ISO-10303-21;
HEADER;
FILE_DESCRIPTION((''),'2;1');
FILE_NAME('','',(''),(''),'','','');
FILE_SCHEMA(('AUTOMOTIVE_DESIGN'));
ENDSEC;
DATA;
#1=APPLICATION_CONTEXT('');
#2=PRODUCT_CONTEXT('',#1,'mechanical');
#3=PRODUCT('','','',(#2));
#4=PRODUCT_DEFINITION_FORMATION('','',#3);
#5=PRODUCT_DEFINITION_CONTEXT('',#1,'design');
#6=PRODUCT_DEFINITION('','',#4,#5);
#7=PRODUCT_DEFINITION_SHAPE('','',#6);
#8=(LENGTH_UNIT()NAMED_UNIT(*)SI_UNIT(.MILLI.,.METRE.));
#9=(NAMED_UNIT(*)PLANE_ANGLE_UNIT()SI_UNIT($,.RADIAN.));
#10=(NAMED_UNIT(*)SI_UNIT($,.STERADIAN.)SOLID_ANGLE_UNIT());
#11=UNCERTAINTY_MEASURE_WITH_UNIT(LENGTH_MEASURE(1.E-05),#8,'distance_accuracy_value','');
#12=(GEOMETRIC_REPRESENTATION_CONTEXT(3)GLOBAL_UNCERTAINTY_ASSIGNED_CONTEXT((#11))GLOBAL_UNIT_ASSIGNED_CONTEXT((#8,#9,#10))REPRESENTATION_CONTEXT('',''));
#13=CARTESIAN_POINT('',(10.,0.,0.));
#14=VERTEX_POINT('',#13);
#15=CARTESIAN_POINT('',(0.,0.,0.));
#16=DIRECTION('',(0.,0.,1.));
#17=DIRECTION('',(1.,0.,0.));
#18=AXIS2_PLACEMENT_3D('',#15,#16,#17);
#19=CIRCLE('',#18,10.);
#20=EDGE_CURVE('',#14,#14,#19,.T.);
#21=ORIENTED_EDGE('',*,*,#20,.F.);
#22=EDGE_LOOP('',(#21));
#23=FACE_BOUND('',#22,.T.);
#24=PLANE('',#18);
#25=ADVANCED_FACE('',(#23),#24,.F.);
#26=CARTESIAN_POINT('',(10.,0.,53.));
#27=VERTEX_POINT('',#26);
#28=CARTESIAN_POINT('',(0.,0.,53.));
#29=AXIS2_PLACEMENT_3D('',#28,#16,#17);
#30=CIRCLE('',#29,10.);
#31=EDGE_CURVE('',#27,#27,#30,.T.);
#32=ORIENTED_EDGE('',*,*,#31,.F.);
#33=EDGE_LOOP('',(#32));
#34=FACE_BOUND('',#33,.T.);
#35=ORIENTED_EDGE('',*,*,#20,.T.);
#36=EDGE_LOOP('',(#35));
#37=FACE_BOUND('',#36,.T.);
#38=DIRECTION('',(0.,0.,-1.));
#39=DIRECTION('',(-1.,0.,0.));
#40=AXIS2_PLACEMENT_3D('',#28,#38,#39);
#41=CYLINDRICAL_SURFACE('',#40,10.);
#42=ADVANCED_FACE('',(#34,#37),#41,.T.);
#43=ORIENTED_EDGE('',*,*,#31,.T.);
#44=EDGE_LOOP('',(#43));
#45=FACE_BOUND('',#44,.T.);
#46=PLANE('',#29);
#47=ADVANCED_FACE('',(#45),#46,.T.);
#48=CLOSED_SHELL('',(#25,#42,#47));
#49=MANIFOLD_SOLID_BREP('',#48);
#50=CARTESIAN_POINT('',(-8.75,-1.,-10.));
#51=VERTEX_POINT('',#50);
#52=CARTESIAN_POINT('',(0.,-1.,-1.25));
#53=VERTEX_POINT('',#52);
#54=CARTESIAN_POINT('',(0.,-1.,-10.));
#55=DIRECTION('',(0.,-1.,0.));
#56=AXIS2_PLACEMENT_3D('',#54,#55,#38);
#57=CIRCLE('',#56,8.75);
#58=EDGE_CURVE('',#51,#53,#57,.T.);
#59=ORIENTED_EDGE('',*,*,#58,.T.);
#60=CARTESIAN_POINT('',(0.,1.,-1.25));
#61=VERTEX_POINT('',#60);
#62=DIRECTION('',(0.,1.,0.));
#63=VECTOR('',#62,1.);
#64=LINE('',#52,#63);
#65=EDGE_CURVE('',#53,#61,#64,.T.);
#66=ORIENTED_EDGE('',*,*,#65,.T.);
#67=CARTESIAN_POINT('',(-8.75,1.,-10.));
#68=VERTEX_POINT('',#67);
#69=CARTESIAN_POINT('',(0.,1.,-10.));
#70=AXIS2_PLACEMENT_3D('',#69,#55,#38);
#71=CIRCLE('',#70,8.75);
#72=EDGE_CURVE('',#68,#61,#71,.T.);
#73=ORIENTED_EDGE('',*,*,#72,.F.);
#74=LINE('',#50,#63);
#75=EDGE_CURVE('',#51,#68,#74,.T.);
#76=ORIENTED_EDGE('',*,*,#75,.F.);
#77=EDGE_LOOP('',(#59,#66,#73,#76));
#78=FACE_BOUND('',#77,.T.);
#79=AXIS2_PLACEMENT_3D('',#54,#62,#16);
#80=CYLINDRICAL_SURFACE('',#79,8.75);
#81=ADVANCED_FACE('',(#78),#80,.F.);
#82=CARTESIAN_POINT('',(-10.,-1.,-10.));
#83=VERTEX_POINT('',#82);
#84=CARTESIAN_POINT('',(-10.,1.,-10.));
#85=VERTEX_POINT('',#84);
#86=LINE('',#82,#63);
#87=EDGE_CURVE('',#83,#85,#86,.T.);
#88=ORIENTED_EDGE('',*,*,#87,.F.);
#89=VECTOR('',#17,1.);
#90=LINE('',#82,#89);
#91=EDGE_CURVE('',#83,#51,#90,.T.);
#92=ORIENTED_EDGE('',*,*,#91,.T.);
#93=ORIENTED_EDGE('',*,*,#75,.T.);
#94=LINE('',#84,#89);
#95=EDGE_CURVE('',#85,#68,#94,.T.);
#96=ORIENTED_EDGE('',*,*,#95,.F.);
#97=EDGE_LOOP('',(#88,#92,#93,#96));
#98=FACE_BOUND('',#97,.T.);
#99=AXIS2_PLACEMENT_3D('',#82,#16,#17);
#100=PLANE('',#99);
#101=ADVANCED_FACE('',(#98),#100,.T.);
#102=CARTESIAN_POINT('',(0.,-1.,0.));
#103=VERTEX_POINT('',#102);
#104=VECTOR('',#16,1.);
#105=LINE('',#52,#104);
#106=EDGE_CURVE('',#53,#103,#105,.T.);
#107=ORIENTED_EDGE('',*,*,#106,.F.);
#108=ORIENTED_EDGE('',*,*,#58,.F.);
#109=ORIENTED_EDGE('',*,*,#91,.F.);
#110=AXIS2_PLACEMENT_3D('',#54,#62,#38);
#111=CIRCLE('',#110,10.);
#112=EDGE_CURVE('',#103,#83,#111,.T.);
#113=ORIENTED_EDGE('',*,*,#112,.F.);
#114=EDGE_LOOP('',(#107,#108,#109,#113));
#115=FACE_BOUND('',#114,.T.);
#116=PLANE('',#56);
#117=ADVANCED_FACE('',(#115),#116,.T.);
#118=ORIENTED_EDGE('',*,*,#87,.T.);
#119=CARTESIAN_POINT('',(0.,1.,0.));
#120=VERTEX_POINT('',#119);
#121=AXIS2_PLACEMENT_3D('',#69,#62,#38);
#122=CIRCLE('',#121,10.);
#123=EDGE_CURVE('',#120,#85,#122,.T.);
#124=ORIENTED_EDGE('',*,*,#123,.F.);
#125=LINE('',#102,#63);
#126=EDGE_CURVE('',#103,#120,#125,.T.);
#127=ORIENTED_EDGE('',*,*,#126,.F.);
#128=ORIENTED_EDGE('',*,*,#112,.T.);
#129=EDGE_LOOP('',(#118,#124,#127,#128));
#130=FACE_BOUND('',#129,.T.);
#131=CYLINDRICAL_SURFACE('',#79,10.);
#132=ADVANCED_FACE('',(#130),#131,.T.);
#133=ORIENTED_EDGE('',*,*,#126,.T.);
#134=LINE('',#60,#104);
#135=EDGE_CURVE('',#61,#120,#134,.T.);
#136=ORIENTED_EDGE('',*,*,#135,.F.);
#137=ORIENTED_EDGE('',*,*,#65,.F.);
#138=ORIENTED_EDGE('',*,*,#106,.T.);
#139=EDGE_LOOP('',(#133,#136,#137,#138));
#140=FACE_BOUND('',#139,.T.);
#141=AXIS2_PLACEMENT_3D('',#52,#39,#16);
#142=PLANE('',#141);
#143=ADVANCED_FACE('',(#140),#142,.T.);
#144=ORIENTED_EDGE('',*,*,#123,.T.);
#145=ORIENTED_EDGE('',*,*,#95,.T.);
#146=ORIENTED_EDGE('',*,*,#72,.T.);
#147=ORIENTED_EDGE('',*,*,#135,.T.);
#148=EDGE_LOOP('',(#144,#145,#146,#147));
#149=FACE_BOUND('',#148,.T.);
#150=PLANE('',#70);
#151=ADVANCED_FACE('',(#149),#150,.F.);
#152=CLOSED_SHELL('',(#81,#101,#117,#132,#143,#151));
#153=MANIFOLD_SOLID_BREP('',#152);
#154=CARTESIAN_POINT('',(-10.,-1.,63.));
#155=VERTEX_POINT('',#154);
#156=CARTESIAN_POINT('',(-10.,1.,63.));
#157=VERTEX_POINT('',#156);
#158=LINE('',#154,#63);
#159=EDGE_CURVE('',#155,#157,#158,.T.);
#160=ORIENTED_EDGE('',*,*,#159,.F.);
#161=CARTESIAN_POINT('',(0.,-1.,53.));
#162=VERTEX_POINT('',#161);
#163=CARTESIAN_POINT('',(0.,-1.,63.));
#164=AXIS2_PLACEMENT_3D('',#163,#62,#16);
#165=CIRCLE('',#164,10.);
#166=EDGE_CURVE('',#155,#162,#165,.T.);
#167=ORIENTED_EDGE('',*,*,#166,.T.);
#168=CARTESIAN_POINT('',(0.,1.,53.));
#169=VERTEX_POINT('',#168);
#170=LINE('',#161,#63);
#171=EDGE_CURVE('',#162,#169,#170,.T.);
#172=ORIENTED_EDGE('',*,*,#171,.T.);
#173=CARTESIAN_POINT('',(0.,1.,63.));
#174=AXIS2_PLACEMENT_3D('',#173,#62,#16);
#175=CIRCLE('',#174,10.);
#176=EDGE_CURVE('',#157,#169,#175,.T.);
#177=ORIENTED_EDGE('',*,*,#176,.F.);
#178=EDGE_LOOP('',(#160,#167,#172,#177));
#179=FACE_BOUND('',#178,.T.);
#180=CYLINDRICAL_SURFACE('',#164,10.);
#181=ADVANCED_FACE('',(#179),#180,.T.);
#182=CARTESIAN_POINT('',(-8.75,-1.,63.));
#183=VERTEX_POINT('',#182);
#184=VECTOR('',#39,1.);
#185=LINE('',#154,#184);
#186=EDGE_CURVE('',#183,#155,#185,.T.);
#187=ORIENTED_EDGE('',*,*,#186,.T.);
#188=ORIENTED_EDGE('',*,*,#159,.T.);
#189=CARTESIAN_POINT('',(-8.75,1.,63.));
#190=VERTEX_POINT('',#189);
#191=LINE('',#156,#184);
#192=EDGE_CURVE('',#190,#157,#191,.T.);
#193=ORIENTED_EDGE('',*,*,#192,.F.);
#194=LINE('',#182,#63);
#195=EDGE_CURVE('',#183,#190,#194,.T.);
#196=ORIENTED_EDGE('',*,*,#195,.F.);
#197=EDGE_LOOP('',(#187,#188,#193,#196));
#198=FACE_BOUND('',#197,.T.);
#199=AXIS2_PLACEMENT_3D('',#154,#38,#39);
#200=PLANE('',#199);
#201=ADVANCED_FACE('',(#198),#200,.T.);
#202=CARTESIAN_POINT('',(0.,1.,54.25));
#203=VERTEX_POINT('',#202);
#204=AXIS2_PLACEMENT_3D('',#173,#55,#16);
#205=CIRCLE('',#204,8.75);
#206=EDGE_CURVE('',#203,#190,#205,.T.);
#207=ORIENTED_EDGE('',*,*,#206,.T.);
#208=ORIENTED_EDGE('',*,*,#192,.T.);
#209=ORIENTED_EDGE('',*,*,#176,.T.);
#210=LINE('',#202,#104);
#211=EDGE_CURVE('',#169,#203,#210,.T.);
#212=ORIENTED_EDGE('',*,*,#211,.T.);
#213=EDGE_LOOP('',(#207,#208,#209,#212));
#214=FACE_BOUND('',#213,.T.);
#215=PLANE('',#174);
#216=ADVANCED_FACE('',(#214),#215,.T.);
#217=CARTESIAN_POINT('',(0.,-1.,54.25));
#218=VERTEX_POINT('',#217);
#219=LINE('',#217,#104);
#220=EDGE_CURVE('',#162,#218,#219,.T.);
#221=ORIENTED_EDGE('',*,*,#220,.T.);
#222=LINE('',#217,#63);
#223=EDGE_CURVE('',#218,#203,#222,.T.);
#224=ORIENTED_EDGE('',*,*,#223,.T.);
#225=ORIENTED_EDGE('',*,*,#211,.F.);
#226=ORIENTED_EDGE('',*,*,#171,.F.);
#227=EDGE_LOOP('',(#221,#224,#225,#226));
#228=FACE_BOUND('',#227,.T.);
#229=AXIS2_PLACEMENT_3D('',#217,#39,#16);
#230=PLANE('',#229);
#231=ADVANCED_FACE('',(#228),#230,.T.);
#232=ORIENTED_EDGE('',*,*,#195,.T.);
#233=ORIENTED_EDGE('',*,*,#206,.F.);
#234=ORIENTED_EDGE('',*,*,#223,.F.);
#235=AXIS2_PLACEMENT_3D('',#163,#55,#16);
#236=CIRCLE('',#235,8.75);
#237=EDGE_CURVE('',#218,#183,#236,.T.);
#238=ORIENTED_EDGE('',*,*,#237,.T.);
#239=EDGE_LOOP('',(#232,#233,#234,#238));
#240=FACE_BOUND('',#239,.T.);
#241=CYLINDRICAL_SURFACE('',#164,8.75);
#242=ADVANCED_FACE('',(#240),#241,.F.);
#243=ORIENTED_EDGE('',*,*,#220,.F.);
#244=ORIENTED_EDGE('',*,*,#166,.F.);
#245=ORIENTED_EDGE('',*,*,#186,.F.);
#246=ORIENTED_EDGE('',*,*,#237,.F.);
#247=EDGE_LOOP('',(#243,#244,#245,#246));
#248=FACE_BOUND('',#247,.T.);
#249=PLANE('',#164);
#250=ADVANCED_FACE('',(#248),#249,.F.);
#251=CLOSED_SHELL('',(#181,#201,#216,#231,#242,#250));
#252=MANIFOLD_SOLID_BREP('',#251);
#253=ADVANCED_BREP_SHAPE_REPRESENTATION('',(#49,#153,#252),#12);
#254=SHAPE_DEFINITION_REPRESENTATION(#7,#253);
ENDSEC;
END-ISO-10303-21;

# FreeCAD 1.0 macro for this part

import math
import FreeCAD as App
import Part
import Sketcher

V = App.Vector

doc = App.newDocument("Part")
body = doc.addObject("PartDesign::Body", "Body")

sketch1 = body.newObject("Sketcher::SketchObject", "Sketch")
sketch1.AttachmentSupport = (doc.getObject("XY_Plane"), [""])
sketch1.MapMode = "FlatFace"
sketch1.addGeometry(Part.Circle(V(0, 0, 0), V(0, 0, 1), 10), False)
sketch1.addConstraint(Sketcher.Constraint("Coincident", 0, 3, -1, 1))
sketch1.addConstraint(Sketcher.Constraint("Diameter", 0, 20.0))
pad1 = body.newObject("PartDesign::Pad", "Pad")
pad1.Profile = sketch1
pad1.Length = 53
body2 = doc.addObject("PartDesign::Body", "Body001")

sketch2 = body2.newObject("Sketcher::SketchObject", "Sketch001")
sketch2.AttachmentSupport = (doc.getObject("XZ_Plane001"), [""])
sketch2.MapMode = "FlatFace"
sketch2.addGeometry(Part.LineSegment(V(-8.8, 63, 0), V(-10, 63, 0)), False)
sketch2.addGeometry(Part.ArcOfCircle(Part.Circle(V(0, 63, 0), V(0, 0, 1), 10), math.radians(-90), math.radians(180)), False)
sketch2.addGeometry(Part.LineSegment(V(0, 53, 0), V(0, 54.2, 0)), False)
sketch2.addGeometry(Part.ArcOfCircle(Part.Circle(V(0, 63, 0), V(0, 0, 1), 8.8), math.radians(-90), math.radians(180)), False)
sketch2.addConstraint(Sketcher.Constraint("Coincident", 0, 2, 1, 2))
sketch2.addConstraint(Sketcher.Constraint("Coincident", 1, 1, 2, 1))
sketch2.addConstraint(Sketcher.Constraint("Coincident", 2, 2, 3, 1))
sketch2.addConstraint(Sketcher.Constraint("Coincident", 3, 2, 0, 1))
sketch2.addConstraint(Sketcher.Constraint("Horizontal", 0))
sketch2.addConstraint(Sketcher.Constraint("Vertical", 2))
sketch2.addConstraint(Sketcher.Constraint("Coincident", 3, 3, 1, 3))
sketch2.addConstraint(Sketcher.Constraint("PointOnObject", 1, 3, -2))
sketch2.addConstraint(Sketcher.Constraint("PointOnObject", 1, 1, -2))
sketch2.addConstraint(Sketcher.Constraint("Horizontal", 3, 3, 0, 2))
sketch2.addConstraint(Sketcher.Constraint("Radius", 1, 10.0))
sketch2.addConstraint(Sketcher.Constraint("Radius", 3, 8.75))
sketch2.addConstraint(Sketcher.Constraint("DistanceY", -1, 1, 1, 3, 63.0))
pad2 = body2.newObject("PartDesign::Pad", "Pad001")
pad2.Profile = sketch2
pad2.Type = "TwoLengths"
pad2.Length = 1
pad2.Length2 = 1
pad2.Reversed = True
body3 = doc.addObject("PartDesign::Body", "Body002")

sketch3 = body3.newObject("Sketcher::SketchObject", "Sketch002")
sketch3.AttachmentSupport = (doc.getObject("XZ_Plane002"), [""])
sketch3.MapMode = "FlatFace"
sketch3.addGeometry(Part.LineSegment(V(0, -1.2, 0), V(0, 0, 0)), False)
sketch3.addGeometry(Part.ArcOfCircle(Part.Circle(V(0, -10, 0), V(0, 0, 1), 10), math.radians(180), math.radians(450)), False)
sketch3.addGeometry(Part.LineSegment(V(-10, -10, 0), V(-8.8, -10, 0)), False)
sketch3.addGeometry(Part.ArcOfCircle(Part.Circle(V(0, -10, 0), V(0, 0, 1), 8.8), math.radians(180), math.radians(450)), False)
sketch3.addConstraint(Sketcher.Constraint("Coincident", 0, 2, 1, 2))
sketch3.addConstraint(Sketcher.Constraint("Coincident", 1, 1, 2, 1))
sketch3.addConstraint(Sketcher.Constraint("Coincident", 2, 2, 3, 1))
sketch3.addConstraint(Sketcher.Constraint("Coincident", 3, 2, 0, 1))
sketch3.addConstraint(Sketcher.Constraint("Vertical", 0))
sketch3.addConstraint(Sketcher.Constraint("Horizontal", 2))
sketch3.addConstraint(Sketcher.Constraint("Coincident", 0, 2, -1, 1))
sketch3.addConstraint(Sketcher.Constraint("Coincident", 3, 3, 1, 3))
sketch3.addConstraint(Sketcher.Constraint("PointOnObject", 1, 3, -2))
sketch3.addConstraint(Sketcher.Constraint("Horizontal", 3, 3, 1, 1))
sketch3.addConstraint(Sketcher.Constraint("Radius", 1, 10.0))
sketch3.addConstraint(Sketcher.Constraint("Radius", 3, 8.75))
pad3 = body3.newObject("PartDesign::Pad", "Pad002")
pad3.Profile = sketch3
pad3.Type = "TwoLengths"
pad3.Length = 1
pad3.Length2 = 1
pad3.Reversed = True

doc.recompute()
